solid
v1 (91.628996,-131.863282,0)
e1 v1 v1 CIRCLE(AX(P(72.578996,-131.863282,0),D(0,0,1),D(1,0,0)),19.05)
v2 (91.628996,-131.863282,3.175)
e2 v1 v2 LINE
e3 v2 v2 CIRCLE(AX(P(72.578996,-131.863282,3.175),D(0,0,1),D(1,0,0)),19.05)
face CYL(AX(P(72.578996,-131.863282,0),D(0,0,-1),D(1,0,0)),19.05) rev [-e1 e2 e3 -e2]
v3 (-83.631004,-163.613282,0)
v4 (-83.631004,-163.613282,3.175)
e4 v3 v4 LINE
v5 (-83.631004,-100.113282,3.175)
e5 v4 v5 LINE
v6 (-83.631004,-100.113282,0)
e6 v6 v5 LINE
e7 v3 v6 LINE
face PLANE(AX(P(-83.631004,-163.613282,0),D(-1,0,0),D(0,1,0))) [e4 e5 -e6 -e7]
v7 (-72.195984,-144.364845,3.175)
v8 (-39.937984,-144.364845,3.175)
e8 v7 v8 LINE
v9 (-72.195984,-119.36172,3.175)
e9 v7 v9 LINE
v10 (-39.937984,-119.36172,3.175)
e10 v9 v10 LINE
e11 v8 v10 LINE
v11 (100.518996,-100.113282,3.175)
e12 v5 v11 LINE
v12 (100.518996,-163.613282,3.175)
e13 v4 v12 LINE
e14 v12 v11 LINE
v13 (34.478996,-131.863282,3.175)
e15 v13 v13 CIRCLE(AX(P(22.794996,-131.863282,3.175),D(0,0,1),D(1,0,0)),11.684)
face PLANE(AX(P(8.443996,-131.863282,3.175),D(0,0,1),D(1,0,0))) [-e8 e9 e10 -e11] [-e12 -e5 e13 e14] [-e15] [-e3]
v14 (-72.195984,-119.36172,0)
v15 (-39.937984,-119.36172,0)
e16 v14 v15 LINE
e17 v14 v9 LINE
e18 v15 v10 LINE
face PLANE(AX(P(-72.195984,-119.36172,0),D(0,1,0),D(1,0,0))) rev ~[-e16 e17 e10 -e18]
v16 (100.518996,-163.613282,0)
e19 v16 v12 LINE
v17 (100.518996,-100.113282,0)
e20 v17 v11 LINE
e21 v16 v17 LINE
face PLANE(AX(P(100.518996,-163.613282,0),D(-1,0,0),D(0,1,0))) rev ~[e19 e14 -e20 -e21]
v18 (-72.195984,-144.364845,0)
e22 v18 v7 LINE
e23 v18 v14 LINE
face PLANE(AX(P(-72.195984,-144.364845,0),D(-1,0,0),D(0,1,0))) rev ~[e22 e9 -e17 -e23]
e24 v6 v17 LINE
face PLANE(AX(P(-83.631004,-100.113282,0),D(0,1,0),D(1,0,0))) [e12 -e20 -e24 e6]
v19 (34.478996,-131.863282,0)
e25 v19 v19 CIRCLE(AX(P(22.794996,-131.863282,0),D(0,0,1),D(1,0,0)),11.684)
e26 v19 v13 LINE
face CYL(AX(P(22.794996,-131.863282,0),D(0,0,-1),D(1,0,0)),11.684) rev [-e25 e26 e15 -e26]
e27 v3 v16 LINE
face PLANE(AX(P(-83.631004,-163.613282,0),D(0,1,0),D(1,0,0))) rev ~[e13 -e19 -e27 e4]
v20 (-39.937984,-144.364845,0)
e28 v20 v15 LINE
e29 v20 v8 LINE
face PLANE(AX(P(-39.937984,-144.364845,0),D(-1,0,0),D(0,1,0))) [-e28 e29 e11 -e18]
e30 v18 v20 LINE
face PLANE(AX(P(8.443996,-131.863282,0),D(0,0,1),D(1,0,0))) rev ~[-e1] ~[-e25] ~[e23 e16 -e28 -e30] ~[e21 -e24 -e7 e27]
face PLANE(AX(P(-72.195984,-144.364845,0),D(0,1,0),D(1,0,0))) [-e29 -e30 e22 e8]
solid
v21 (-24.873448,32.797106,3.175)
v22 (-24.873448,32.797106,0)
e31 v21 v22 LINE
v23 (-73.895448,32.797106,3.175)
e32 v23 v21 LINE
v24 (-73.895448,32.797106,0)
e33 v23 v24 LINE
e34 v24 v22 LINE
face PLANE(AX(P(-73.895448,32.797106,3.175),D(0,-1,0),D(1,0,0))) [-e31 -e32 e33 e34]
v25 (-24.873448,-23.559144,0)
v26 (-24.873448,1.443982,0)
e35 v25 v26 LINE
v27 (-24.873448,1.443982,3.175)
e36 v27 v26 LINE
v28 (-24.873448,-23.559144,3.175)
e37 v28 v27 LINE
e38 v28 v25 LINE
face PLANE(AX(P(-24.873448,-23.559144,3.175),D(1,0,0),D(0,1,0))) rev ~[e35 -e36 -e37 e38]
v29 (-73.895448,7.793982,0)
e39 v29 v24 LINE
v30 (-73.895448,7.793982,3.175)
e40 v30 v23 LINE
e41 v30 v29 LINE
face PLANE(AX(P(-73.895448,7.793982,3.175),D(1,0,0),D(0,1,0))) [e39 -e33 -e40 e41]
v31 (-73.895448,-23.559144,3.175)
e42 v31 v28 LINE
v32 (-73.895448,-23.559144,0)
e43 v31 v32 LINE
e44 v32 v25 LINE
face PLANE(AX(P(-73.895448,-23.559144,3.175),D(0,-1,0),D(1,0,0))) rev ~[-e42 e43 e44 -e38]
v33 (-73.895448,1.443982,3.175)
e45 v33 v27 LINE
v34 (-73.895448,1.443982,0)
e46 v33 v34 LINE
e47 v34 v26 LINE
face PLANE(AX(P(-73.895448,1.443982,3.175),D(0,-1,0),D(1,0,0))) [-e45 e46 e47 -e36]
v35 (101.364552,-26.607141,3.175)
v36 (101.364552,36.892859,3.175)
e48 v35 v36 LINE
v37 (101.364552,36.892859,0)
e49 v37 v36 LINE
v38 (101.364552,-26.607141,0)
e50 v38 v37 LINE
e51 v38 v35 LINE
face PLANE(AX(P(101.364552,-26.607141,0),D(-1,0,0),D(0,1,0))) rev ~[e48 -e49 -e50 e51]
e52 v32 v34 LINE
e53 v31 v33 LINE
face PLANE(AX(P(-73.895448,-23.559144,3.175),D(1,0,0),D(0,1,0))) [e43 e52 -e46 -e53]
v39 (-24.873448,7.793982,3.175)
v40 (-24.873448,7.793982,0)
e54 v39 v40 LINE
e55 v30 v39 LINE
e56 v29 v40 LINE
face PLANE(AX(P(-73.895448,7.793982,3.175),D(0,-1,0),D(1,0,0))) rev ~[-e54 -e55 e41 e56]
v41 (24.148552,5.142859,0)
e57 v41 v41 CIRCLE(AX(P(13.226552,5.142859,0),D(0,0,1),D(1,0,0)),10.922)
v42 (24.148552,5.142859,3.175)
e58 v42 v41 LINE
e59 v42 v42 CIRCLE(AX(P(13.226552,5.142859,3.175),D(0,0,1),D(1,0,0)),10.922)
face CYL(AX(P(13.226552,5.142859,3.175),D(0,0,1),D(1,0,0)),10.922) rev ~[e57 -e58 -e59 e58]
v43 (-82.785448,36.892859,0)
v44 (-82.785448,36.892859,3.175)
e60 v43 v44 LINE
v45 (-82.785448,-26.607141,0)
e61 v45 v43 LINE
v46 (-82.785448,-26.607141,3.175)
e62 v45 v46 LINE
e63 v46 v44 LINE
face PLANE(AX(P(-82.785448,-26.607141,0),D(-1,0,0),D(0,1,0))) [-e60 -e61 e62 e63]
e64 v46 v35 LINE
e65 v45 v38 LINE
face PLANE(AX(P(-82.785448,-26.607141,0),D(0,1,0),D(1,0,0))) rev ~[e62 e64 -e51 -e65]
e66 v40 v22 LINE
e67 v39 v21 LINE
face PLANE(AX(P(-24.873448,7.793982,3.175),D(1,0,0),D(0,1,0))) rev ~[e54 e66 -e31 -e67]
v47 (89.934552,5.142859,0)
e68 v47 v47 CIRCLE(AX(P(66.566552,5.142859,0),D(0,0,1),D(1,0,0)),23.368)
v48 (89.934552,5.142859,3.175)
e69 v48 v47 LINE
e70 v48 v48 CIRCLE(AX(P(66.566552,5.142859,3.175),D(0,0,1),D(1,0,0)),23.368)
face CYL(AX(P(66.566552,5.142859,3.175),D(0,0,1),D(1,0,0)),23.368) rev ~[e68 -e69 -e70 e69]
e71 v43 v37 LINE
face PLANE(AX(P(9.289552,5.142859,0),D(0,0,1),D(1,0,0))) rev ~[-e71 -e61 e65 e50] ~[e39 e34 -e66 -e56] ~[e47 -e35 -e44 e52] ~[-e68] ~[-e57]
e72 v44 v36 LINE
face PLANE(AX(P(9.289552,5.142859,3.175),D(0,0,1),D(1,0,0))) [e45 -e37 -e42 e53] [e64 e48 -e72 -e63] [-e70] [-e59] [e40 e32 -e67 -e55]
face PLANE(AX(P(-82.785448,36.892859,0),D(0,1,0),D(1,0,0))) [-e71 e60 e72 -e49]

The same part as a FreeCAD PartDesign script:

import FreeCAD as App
import Part
import Sketcher
Q = App.Units.Quantity

doc = App.newDocument("Part")
body = doc.addObject("PartDesign::Body", "Body")

# Sketch on XY plane
sketch1 = body.newObject("Sketcher::SketchObject", "Sketch")
sketch1.AttachmentSupport = (doc.getObject("XY_Plane"), [""])
sketch1.MapMode = "FlatFace"
sketch1.addGeometry([
    Part.LineSegment(App.Vector(-83, 37, 0), App.Vector(-83, -27, 0)),
    Part.LineSegment(App.Vector(-83, -27, 0), App.Vector(101, -27, 0)),
    Part.LineSegment(App.Vector(101, -27, 0), App.Vector(101, 37, 0)),
    Part.LineSegment(App.Vector(101, 37, 0), App.Vector(-83, 37, 0)),
], False)
sketch1.addConstraint([
    Sketcher.Constraint("Coincident", 0, 2, 1, 1),
    Sketcher.Constraint("Coincident", 1, 2, 2, 1),
    Sketcher.Constraint("Coincident", 2, 2, 3, 1),
    Sketcher.Constraint("Coincident", 3, 2, 0, 1),
    Sketcher.Constraint("Vertical", 0),
    Sketcher.Constraint("Horizontal", 1),
    Sketcher.Constraint("Vertical", 2),
    Sketcher.Constraint("Horizontal", 3),
    Sketcher.Constraint("DistanceY", 0, 2, 0, 1, Q("2.5 in")),
    Sketcher.Constraint("DistanceX", 1, 1, 1, 2, Q("7.25 in")),
    Sketcher.Constraint("DistanceX", 0, 2, -1, 1, 82.785448),
    Sketcher.Constraint("DistanceY", 0, 2, -1, 1, 26.607141),
])
pad1 = body.newObject("PartDesign::Pad", "Pad")
pad1.Profile = sketch1
pad1.Length = Q("0.125 in")

# Sketch on XY plane
sketch2 = body.newObject("Sketcher::SketchObject", "Sketch001")
sketch2.AttachmentSupport = (doc.getObject("XY_Plane"), [""])
sketch2.MapMode = "FlatFace"
sketch2.AttachmentOffset = App.Placement(App.Vector(0, 0, 0.125 * 25.4), App.Rotation())
sketch2.addGeometry([
    Part.LineSegment(App.Vector(-74, 33, 0), App.Vector(-74, 8, 0)),  # 0
    Part.LineSegment(App.Vector(-74, 8, 0), App.Vector(-25, 8, 0)),  # 1
    Part.LineSegment(App.Vector(-25, 8, 0), App.Vector(-25, 33, 0)),  # 2
    Part.LineSegment(App.Vector(-25, 33, 0), App.Vector(-74, 33, 0)),  # 3
    Part.LineSegment(App.Vector(-74, 1, 0), App.Vector(-74, -24, 0)),  # 4
    Part.LineSegment(App.Vector(-74, -24, 0), App.Vector(-25, -24, 0)),  # 5
    Part.LineSegment(App.Vector(-25, -24, 0), App.Vector(-25, 1, 0)),  # 6
    Part.LineSegment(App.Vector(-25, 1, 0), App.Vector(-74, 1, 0)),  # 7
    Part.Circle(App.Vector(67, 5, 0), App.Vector(0, 0, 1), 23),  # 8
    Part.Circle(App.Vector(13, 5, 0), App.Vector(0, 0, 1), 11),  # 9
], False)
sketch2.addConstraint([
    Sketcher.Constraint("Coincident", 0, 2, 1, 1),
    Sketcher.Constraint("Coincident", 1, 2, 2, 1),
    Sketcher.Constraint("Coincident", 2, 2, 3, 1),
    Sketcher.Constraint("Coincident", 3, 2, 0, 1),
    Sketcher.Constraint("Coincident", 4, 2, 5, 1),
    Sketcher.Constraint("Coincident", 5, 2, 6, 1),
    Sketcher.Constraint("Coincident", 6, 2, 7, 1),
    Sketcher.Constraint("Coincident", 7, 2, 4, 1),
    Sketcher.Constraint("Vertical", 0),
    Sketcher.Constraint("Horizontal", 1),
    Sketcher.Constraint("Vertical", 2),
    Sketcher.Constraint("Horizontal", 3),
    Sketcher.Constraint("Vertical", 4),
    Sketcher.Constraint("Horizontal", 5),
    Sketcher.Constraint("Vertical", 6),
    Sketcher.Constraint("Horizontal", 7),
    Sketcher.Constraint("Horizontal", 8, 3, 9, 3),
    Sketcher.Constraint("Vertical", 3, 2, 4, 2),
    Sketcher.Constraint("Vertical", 2, 2, 5, 2),
    Sketcher.Constraint("Equal", 2, 4),
    Sketcher.Constraint("Diameter", 8, Q("1.84 in")),
    Sketcher.Constraint("Diameter", 9, Q("0.86 in")),
    Sketcher.Constraint("DistanceX", 1, 1, 1, 2, Q("1.93 in")),
    Sketcher.Constraint("DistanceX", 9, 3, 8, 3, Q("2.1 in")),
    Sketcher.Constraint("DistanceX", 1, 2, 9, 3, Q("1.5 in")),
    Sketcher.Constraint("DistanceY", 0, 2, 0, 1, Q("0.984375 in")),
    Sketcher.Constraint("DistanceY", 4, 2, 9, 3, Q("1.1300001 in")),
    Sketcher.Constraint("DistanceY", 6, 2, 1, 2, Q("0.25 in")),
    Sketcher.Constraint("DistanceX", -1, 1, 8, 3, 66.566552),
    Sketcher.Constraint("DistanceY", -1, 1, 8, 3, 5.142859),
])
pocket1 = body.newObject("PartDesign::Pocket", "Pocket")
pocket1.Profile = sketch2
pocket1.Length = Q("1 in")
body2 = doc.addObject("PartDesign::Body", "Body001")

# Sketch on XY plane
sketch3 = body2.newObject("Sketcher::SketchObject", "Sketch002")
sketch3.AttachmentSupport = (doc.getObject("XY_Plane001"), [""])
sketch3.MapMode = "FlatFace"
sketch3.addGeometry([
    Part.LineSegment(App.Vector(-84, -100, 0), App.Vector(-84, -164, 0)),
    Part.LineSegment(App.Vector(-84, -164, 0), App.Vector(101, -164, 0)),
    Part.LineSegment(App.Vector(101, -164, 0), App.Vector(101, -100, 0)),
    Part.LineSegment(App.Vector(101, -100, 0), App.Vector(-84, -100, 0)),
], False)
sketch3.addConstraint([
    Sketcher.Constraint("Coincident", 0, 2, 1, 1),
    Sketcher.Constraint("Coincident", 1, 2, 2, 1),
    Sketcher.Constraint("Coincident", 2, 2, 3, 1),
    Sketcher.Constraint("Coincident", 3, 2, 0, 1),
    Sketcher.Constraint("Vertical", 0),
    Sketcher.Constraint("Horizontal", 1),
    Sketcher.Constraint("Vertical", 2),
    Sketcher.Constraint("Horizontal", 3),
    Sketcher.Constraint("DistanceY", 0, 2, 0, 1, Q("2.5 in")),
    Sketcher.Constraint("DistanceX", 1, 1, 1, 2, Q("7.25 in")),
    Sketcher.Constraint("DistanceY", 0, 2, -1, 1, 163.613282),
    Sketcher.Constraint("DistanceX", 0, 2, -1, 1, 83.631004),
])
pad2 = body2.newObject("PartDesign::Pad", "Pad001")
pad2.Profile = sketch3
pad2.Length = Q("0.125 in")

# Sketch on XY plane
sketch4 = body2.newObject("Sketcher::SketchObject", "Sketch003")
sketch4.AttachmentSupport = (doc.getObject("XY_Plane001"), [""])
sketch4.MapMode = "FlatFace"
sketch4.addGeometry([
    Part.Circle(App.Vector(73, -132, 0), App.Vector(0, 0, 1), 19),  # 0
    Part.Circle(App.Vector(23, -132, 0), App.Vector(0, 0, 1), 12),  # 1
    Part.LineSegment(App.Vector(-72, -119, 0), App.Vector(-72, -144, 0)),  # 2
    Part.LineSegment(App.Vector(-72, -144, 0), App.Vector(-40, -144, 0)),  # 3
    Part.LineSegment(App.Vector(-40, -144, 0), App.Vector(-40, -119, 0)),  # 4
    Part.LineSegment(App.Vector(-40, -119, 0), App.Vector(-72, -119, 0)),  # 5
], False)
sketch4.addConstraint([
    Sketcher.Constraint("Coincident", 2, 2, 3, 1),
    Sketcher.Constraint("Coincident", 3, 2, 4, 1),
    Sketcher.Constraint("Coincident", 4, 2, 5, 1),
    Sketcher.Constraint("Coincident", 5, 2, 2, 1),
    Sketcher.Constraint("Vertical", 2),
    Sketcher.Constraint("Horizontal", 3),
    Sketcher.Constraint("Vertical", 4),
    Sketcher.Constraint("Horizontal", 5),
    Sketcher.Constraint("Horizontal", 0, 3, 1, 3),
    Sketcher.Constraint("Diameter", 0, Q("1.5 in")),
    Sketcher.Constraint("Diameter", 1, Q("0.92 in")),
    Sketcher.Constraint("DistanceX", 3, 1, 3, 2, Q("1.27 in")),
    Sketcher.Constraint("DistanceY", 2, 2, 2, 1, Q("0.984375 in")),
    Sketcher.Constraint("DistanceX", 1, 3, 0, 3, Q("1.96 in")),
    Sketcher.Constraint("DistanceY", 0, 3, -1, 1, 131.863282),
    Sketcher.Constraint("DistanceY", 4, 2, -1, 1, 119.36172),
    Sketcher.Constraint("DistanceX", 2, 2, 1, 3, 94.99098),
    Sketcher.Constraint("DistanceX", -1, 1, 0, 3, 72.578996),
])
pocket2 = body2.newObject("PartDesign::Pocket", "Pocket001")
pocket2.Profile = sketch4
pocket2.Type = "ThroughAll"
pocket2.Reversed = True

doc.recompute()
